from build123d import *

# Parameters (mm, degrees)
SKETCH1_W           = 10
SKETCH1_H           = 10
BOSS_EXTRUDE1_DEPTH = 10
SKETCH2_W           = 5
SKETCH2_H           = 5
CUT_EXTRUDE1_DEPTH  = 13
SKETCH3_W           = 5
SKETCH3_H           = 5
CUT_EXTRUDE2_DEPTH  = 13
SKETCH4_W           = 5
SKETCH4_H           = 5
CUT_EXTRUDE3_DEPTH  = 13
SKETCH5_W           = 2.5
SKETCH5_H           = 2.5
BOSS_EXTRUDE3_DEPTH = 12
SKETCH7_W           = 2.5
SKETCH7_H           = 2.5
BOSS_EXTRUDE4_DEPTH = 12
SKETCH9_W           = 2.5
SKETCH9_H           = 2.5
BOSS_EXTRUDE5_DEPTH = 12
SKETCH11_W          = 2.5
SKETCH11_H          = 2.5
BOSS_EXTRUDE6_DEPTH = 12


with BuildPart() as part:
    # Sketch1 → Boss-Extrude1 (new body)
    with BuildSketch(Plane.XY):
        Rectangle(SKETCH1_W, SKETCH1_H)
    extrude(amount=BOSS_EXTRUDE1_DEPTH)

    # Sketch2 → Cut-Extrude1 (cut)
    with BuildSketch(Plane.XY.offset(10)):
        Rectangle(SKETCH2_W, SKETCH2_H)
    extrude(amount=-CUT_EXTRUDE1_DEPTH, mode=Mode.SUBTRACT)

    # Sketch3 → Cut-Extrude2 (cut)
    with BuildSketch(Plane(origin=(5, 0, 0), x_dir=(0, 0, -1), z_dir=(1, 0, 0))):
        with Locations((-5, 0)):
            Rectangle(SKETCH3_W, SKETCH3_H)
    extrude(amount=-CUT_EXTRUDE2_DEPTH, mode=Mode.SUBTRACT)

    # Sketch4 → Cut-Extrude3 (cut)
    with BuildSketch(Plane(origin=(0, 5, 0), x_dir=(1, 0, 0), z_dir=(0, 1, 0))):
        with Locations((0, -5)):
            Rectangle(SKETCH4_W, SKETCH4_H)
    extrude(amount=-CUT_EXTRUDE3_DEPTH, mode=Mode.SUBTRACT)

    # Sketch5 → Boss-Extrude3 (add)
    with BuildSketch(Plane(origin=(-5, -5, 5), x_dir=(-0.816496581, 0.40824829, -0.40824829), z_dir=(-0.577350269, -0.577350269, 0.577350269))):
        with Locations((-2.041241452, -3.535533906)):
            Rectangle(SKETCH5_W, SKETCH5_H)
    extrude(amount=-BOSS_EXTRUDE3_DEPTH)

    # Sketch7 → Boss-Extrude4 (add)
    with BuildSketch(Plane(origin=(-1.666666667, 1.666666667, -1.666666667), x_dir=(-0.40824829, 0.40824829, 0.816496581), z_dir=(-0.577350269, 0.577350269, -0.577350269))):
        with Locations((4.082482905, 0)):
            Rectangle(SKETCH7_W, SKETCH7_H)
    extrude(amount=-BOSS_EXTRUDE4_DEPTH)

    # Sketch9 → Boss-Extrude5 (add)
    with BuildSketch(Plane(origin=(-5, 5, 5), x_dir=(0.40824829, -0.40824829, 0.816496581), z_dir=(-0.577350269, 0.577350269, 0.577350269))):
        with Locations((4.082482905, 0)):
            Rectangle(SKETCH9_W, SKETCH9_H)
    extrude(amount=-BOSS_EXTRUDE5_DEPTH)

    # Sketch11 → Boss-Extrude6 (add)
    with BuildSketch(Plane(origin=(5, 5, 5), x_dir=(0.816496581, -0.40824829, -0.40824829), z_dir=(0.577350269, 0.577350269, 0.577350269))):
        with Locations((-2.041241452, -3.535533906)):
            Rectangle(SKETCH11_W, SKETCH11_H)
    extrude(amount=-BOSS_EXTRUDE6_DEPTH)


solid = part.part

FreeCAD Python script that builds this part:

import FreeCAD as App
import Part
import Sketcher

doc = App.newDocument("Part")
body = doc.addObject("PartDesign::Body", "Body")

# Sketch on XY plane
sketch1 = body.newObject("Sketcher::SketchObject", "Sketch")
sketch1.AttachmentSupport = (doc.getObject("XY_Plane"), [""])
sketch1.MapMode = "FlatFace"
sketch1.addGeometry([
    Part.LineSegment(App.Vector(-5, 5, 0), App.Vector(-5, -5, 0)),
    Part.LineSegment(App.Vector(-5, -5, 0), App.Vector(5, -5, 0)),
    Part.LineSegment(App.Vector(5, -5, 0), App.Vector(5, 5, 0)),
    Part.LineSegment(App.Vector(5, 5, 0), App.Vector(-5, 5, 0)),
], False)
sketch1.addConstraint([
    Sketcher.Constraint("Coincident", 0, 2, 1, 1),
    Sketcher.Constraint("Coincident", 1, 2, 2, 1),
    Sketcher.Constraint("Coincident", 2, 2, 3, 1),
    Sketcher.Constraint("Coincident", 3, 2, 0, 1),
    Sketcher.Constraint("Vertical", 0),
    Sketcher.Constraint("Horizontal", 1),
    Sketcher.Constraint("Vertical", 2),
    Sketcher.Constraint("Horizontal", 3),
    Sketcher.Constraint("Symmetric", 0, 2, 2, 2, -1, 1),
    Sketcher.Constraint("Equal", 3, 0),
    Sketcher.Constraint("DistanceX", 1, 1, 1, 2, 10.0),
])
pad1 = body.newObject("PartDesign::Pad", "Pad")
pad1.Profile = sketch1
pad1.Length = 10

# Sketch on XY plane
sketch2 = body.newObject("Sketcher::SketchObject", "Sketch001")
sketch2.AttachmentSupport = (doc.getObject("XY_Plane"), [""])
sketch2.MapMode = "FlatFace"
sketch2.AttachmentOffset = App.Placement(App.Vector(0, 0, 10), App.Rotation())
sketch2.addGeometry([
    Part.LineSegment(App.Vector(-2.5, 2.5, 0), App.Vector(-2.5, -2.5, 0)),
    Part.LineSegment(App.Vector(-2.5, -2.5, 0), App.Vector(2.5, -2.5, 0)),
    Part.LineSegment(App.Vector(2.5, -2.5, 0), App.Vector(2.5, 2.5, 0)),
    Part.LineSegment(App.Vector(2.5, 2.5, 0), App.Vector(-2.5, 2.5, 0)),
], False)
sketch2.addConstraint([
    Sketcher.Constraint("Coincident", 0, 2, 1, 1),
    Sketcher.Constraint("Coincident", 1, 2, 2, 1),
    Sketcher.Constraint("Coincident", 2, 2, 3, 1),
    Sketcher.Constraint("Coincident", 3, 2, 0, 1),
    Sketcher.Constraint("Vertical", 0),
    Sketcher.Constraint("Horizontal", 1),
    Sketcher.Constraint("Vertical", 2),
    Sketcher.Constraint("Horizontal", 3),
    Sketcher.Constraint("Symmetric", 0, 2, 2, 2, -1, 1),
    Sketcher.Constraint("Equal", 3, 0),
    Sketcher.Constraint("DistanceX", 1, 1, 1, 2, 5.0),
])
pocket1 = body.newObject("PartDesign::Pocket", "Pocket")
pocket1.Profile = sketch2
pocket1.Length = 13

# Sketch on YZ plane
sketch3 = body.newObject("Sketcher::SketchObject", "Sketch002")
sketch3.AttachmentSupport = (doc.getObject("YZ_Plane"), [""])
sketch3.MapMode = "FlatFace"
sketch3.AttachmentOffset = App.Placement(App.Vector(0, 0, 5), App.Rotation())
sketch3.addGeometry([
    Part.LineSegment(App.Vector(2.5, 7.5, 0), App.Vector(-2.5, 7.5, 0)),
    Part.LineSegment(App.Vector(-2.5, 7.5, 0), App.Vector(-2.5, 2.5, 0)),
    Part.LineSegment(App.Vector(-2.5, 2.5, 0), App.Vector(2.5, 2.5, 0)),
    Part.LineSegment(App.Vector(2.5, 2.5, 0), App.Vector(2.5, 7.5, 0)),
], False)
sketch3.addConstraint([
    Sketcher.Constraint("Coincident", 0, 2, 1, 1),
    Sketcher.Constraint("Coincident", 1, 2, 2, 1),
    Sketcher.Constraint("Coincident", 2, 2, 3, 1),
    Sketcher.Constraint("Coincident", 3, 2, 0, 1),
    Sketcher.Constraint("Horizontal", 0),
    Sketcher.Constraint("Vertical", 1),
    Sketcher.Constraint("Horizontal", 2),
    Sketcher.Constraint("Vertical", 3),
    Sketcher.Constraint("Equal", 2, 1),
    Sketcher.Constraint("DistanceX", 0, 2, 0, 1, 5.0),
    Sketcher.Constraint("DistanceX", 0, 2, -1, 1, 2.5),
    Sketcher.Constraint("DistanceY", -1, 1, 0, 2, 7.5),
])
pocket2 = body.newObject("PartDesign::Pocket", "Pocket001")
pocket2.Profile = sketch3
pocket2.Length = 13

# Sketch on XZ plane
sketch4 = body.newObject("Sketcher::SketchObject", "Sketch003")
sketch4.AttachmentSupport = (doc.getObject("XZ_Plane"), [""])
sketch4.MapMode = "FlatFace"
sketch4.AttachmentOffset = App.Placement(App.Vector(0, 0, -5), App.Rotation())
sketch4.addGeometry([
    Part.LineSegment(App.Vector(-2.5, 2.5, 0), App.Vector(-2.5, 7.5, 0)),
    Part.LineSegment(App.Vector(-2.5, 7.5, 0), App.Vector(2.5, 7.5, 0)),
    Part.LineSegment(App.Vector(2.5, 7.5, 0), App.Vector(2.5, 2.5, 0)),
    Part.LineSegment(App.Vector(2.5, 2.5, 0), App.Vector(-2.5, 2.5, 0)),
], False)
sketch4.addConstraint([
    Sketcher.Constraint("Coincident", 0, 2, 1, 1),
    Sketcher.Constraint("Coincident", 1, 2, 2, 1),
    Sketcher.Constraint("Coincident", 2, 2, 3, 1),
    Sketcher.Constraint("Coincident", 3, 2, 0, 1),
    Sketcher.Constraint("Vertical", 0),
    Sketcher.Constraint("Horizontal", 1),
    Sketcher.Constraint("Vertical", 2),
    Sketcher.Constraint("Horizontal", 3),
    Sketcher.Constraint("Equal", 3, 0),
    Sketcher.Constraint("DistanceX", 1, 1, 1, 2, 5.0),
    Sketcher.Constraint("DistanceX", 0, 2, -1, 1, 2.5),
    Sketcher.Constraint("DistanceY", -1, 1, 0, 2, 7.5),
])
pocket3 = body.newObject("PartDesign::Pocket", "Pocket002")
pocket3.Profile = sketch4
pocket3.Length = 13
pocket3.Reversed = True

# Sketch on an angled plane
sketch5 = body.newObject("Sketcher::SketchObject", "Sketch004")
sketch5.Placement = App.Placement(App.Vector(-5, -5, 5), App.Rotation(App.Vector(-0.816496581, 0.40824829, -0.40824829), App.Vector(0, -0.707106781, -0.707106781), App.Vector(-0.577350269, -0.577350269, 0.577350269), "ZXY"))
sketch5.addGeometry([
    Part.LineSegment(App.Vector(-3.291241, -2.285534, 0), App.Vector(-3.291241, -4.785534, 0)),
    Part.LineSegment(App.Vector(-3.291241, -4.785534, 0), App.Vector(-0.791241, -4.785534, 0)),
    Part.LineSegment(App.Vector(-0.791241, -4.785534, 0), App.Vector(-0.791241, -2.285534, 0)),
    Part.LineSegment(App.Vector(-0.791241, -2.285534, 0), App.Vector(-3.291241, -2.285534, 0)),
], False)
sketch5.addConstraint([
    Sketcher.Constraint("Coincident", 0, 2, 1, 1),
    Sketcher.Constraint("Coincident", 1, 2, 2, 1),
    Sketcher.Constraint("Coincident", 2, 2, 3, 1),
    Sketcher.Constraint("Coincident", 3, 2, 0, 1),
    Sketcher.Constraint("Vertical", 0),
    Sketcher.Constraint("Horizontal", 1),
    Sketcher.Constraint("Vertical", 2),
    Sketcher.Constraint("Horizontal", 3),
    Sketcher.Constraint("Equal", 3, 0),
    Sketcher.Constraint("DistanceX", 1, 1, 1, 2, 2.5),
    Sketcher.Constraint("DistanceX", 0, 2, -1, 1, 3.291241),
    Sketcher.Constraint("DistanceY", 0, 2, -1, 1, 4.785534),
])
pad2 = body.newObject("PartDesign::Pad", "Pad001")
pad2.Profile = sketch5
pad2.Length = 12
pad2.Reversed = True

# Sketch on an angled plane
sketch6 = body.newObject("Sketcher::SketchObject", "Sketch005")
sketch6.Placement = App.Placement(App.Vector(-1.666667, 1.666667, -1.666667), App.Rotation(App.Vector(-0.40824829, 0.40824829, 0.816496581), App.Vector(0.707106781, 0.707106781, 0), App.Vector(-0.577350269, 0.577350269, -0.577350269), "ZXY"))
sketch6.addGeometry([
    Part.LineSegment(App.Vector(2.832483, 1.25, 0), App.Vector(2.832483, -1.25, 0)),
    Part.LineSegment(App.Vector(2.832483, -1.25, 0), App.Vector(5.332483, -1.25, 0)),
    Part.LineSegment(App.Vector(5.332483, -1.25, 0), App.Vector(5.332483, 1.25, 0)),
    Part.LineSegment(App.Vector(5.332483, 1.25, 0), App.Vector(2.832483, 1.25, 0)),
], False)
sketch6.addConstraint([
    Sketcher.Constraint("Coincident", 0, 2, 1, 1),
    Sketcher.Constraint("Coincident", 1, 2, 2, 1),
    Sketcher.Constraint("Coincident", 2, 2, 3, 1),
    Sketcher.Constraint("Coincident", 3, 2, 0, 1),
    Sketcher.Constraint("Vertical", 0),
    Sketcher.Constraint("Horizontal", 1),
    Sketcher.Constraint("Vertical", 2),
    Sketcher.Constraint("Horizontal", 3),
    Sketcher.Constraint("Equal", 3, 0),
    Sketcher.Constraint("DistanceX", 1, 1, 1, 2, 2.5),
    Sketcher.Constraint("DistanceY", 0, 2, -1, 1, 1.25),
    Sketcher.Constraint("DistanceX", -1, 1, 0, 2, 2.832483),
])
pad3 = body.newObject("PartDesign::Pad", "Pad002")
pad3.Profile = sketch6
pad3.Length = 12
pad3.Reversed = True

# Sketch on an angled plane
sketch7 = body.newObject("Sketcher::SketchObject", "Sketch006")
sketch7.Placement = App.Placement(App.Vector(-5, 5, 5), App.Rotation(App.Vector(0.40824829, -0.40824829, 0.816496581), App.Vector(0.707106781, 0.707106781, 0), App.Vector(-0.577350269, 0.577350269, 0.577350269), "ZXY"))
sketch7.addGeometry([
    Part.LineSegment(App.Vector(2.832483, 1.25, 0), App.Vector(2.832483, -1.25, 0)),
    Part.LineSegment(App.Vector(2.832483, -1.25, 0), App.Vector(5.332483, -1.25, 0)),
    Part.LineSegment(App.Vector(5.332483, -1.25, 0), App.Vector(5.332483, 1.25, 0)),
    Part.LineSegment(App.Vector(5.332483, 1.25, 0), App.Vector(2.832483, 1.25, 0)),
], False)
sketch7.addConstraint([
    Sketcher.Constraint("Coincident", 0, 2, 1, 1),
    Sketcher.Constraint("Coincident", 1, 2, 2, 1),
    Sketcher.Constraint("Coincident", 2, 2, 3, 1),
    Sketcher.Constraint("Coincident", 3, 2, 0, 1),
    Sketcher.Constraint("Vertical", 0),
    Sketcher.Constraint("Horizontal", 1),
    Sketcher.Constraint("Vertical", 2),
    Sketcher.Constraint("Horizontal", 3),
    Sketcher.Constraint("Equal", 3, 0),
    Sketcher.Constraint("DistanceX", 1, 1, 1, 2, 2.5),
    Sketcher.Constraint("DistanceY", 0, 2, -1, 1, 1.25),
    Sketcher.Constraint("DistanceX", -1, 1, 0, 2, 2.832483),
])
pad4 = body.newObject("PartDesign::Pad", "Pad003")
pad4.Profile = sketch7
pad4.Length = 12
pad4.Reversed = True

# Sketch on an angled plane
sketch8 = body.newObject("Sketcher::SketchObject", "Sketch007")
sketch8.Placement = App.Placement(App.Vector(5, 5, 5), App.Rotation(App.Vector(0.816496581, -0.40824829, -0.40824829), App.Vector(0, 0.707106781, -0.707106781), App.Vector(0.577350269, 0.577350269, 0.577350269), "ZXY"))
sketch8.addGeometry([
    Part.LineSegment(App.Vector(-3.291241, -2.285534, 0), App.Vector(-3.291241, -4.785534, 0)),
    Part.LineSegment(App.Vector(-3.291241, -4.785534, 0), App.Vector(-0.791241, -4.785534, 0)),
    Part.LineSegment(App.Vector(-0.791241, -4.785534, 0), App.Vector(-0.791241, -2.285534, 0)),
    Part.LineSegment(App.Vector(-0.791241, -2.285534, 0), App.Vector(-3.291241, -2.285534, 0)),
], False)
sketch8.addConstraint([
    Sketcher.Constraint("Coincident", 0, 2, 1, 1),
    Sketcher.Constraint("Coincident", 1, 2, 2, 1),
    Sketcher.Constraint("Coincident", 2, 2, 3, 1),
    Sketcher.Constraint("Coincident", 3, 2, 0, 1),
    Sketcher.Constraint("Vertical", 0),
    Sketcher.Constraint("Horizontal", 1),
    Sketcher.Constraint("Vertical", 2),
    Sketcher.Constraint("Horizontal", 3),
    Sketcher.Constraint("Equal", 3, 0),
    Sketcher.Constraint("DistanceX", 1, 1, 1, 2, 2.5),
    Sketcher.Constraint("DistanceX", 0, 2, -1, 1, 3.291241),
    Sketcher.Constraint("DistanceY", 0, 2, -1, 1, 4.785534),
])
pad5 = body.newObject("PartDesign::Pad", "Pad004")
pad5.Profile = sketch8
pad5.Length = 12
pad5.Reversed = True

doc.recompute()
